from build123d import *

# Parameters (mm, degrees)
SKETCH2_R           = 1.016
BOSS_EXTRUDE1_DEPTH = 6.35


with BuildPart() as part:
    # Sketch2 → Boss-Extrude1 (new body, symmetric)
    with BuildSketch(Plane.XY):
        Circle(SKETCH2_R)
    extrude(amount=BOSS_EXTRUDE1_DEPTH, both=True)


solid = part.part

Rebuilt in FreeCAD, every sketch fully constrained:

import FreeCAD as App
import Part
import Sketcher

V = App.Vector
Q = App.Units.Quantity

doc = App.newDocument("Part")
body = doc.addObject("PartDesign::Body", "Body")

# Sketch on XY plane
sketch1 = doc.addObject("Sketcher::SketchObject", "Sketch")
body.addObject(sketch1)
sketch1.AttachmentSupport = (doc.XY_Plane, [""])
sketch1.MapMode = "FlatFace"
sketch1.addGeometry(Part.Circle(V(0, 0, 0), V(0, 0, 1), 1), False)
sketch1.addConstraint(Sketcher.Constraint("Coincident", 0, 3, -1, 1))
sketch1.addConstraint(Sketcher.Constraint("Diameter", 0, Q("0.08 in")))
pad1 = doc.addObject("PartDesign::Pad", "Pad")
body.addObject(pad1)
pad1.Profile = sketch1
pad1.Length = Q("0.5 in")
pad1.Midplane = True

doc.recompute()
